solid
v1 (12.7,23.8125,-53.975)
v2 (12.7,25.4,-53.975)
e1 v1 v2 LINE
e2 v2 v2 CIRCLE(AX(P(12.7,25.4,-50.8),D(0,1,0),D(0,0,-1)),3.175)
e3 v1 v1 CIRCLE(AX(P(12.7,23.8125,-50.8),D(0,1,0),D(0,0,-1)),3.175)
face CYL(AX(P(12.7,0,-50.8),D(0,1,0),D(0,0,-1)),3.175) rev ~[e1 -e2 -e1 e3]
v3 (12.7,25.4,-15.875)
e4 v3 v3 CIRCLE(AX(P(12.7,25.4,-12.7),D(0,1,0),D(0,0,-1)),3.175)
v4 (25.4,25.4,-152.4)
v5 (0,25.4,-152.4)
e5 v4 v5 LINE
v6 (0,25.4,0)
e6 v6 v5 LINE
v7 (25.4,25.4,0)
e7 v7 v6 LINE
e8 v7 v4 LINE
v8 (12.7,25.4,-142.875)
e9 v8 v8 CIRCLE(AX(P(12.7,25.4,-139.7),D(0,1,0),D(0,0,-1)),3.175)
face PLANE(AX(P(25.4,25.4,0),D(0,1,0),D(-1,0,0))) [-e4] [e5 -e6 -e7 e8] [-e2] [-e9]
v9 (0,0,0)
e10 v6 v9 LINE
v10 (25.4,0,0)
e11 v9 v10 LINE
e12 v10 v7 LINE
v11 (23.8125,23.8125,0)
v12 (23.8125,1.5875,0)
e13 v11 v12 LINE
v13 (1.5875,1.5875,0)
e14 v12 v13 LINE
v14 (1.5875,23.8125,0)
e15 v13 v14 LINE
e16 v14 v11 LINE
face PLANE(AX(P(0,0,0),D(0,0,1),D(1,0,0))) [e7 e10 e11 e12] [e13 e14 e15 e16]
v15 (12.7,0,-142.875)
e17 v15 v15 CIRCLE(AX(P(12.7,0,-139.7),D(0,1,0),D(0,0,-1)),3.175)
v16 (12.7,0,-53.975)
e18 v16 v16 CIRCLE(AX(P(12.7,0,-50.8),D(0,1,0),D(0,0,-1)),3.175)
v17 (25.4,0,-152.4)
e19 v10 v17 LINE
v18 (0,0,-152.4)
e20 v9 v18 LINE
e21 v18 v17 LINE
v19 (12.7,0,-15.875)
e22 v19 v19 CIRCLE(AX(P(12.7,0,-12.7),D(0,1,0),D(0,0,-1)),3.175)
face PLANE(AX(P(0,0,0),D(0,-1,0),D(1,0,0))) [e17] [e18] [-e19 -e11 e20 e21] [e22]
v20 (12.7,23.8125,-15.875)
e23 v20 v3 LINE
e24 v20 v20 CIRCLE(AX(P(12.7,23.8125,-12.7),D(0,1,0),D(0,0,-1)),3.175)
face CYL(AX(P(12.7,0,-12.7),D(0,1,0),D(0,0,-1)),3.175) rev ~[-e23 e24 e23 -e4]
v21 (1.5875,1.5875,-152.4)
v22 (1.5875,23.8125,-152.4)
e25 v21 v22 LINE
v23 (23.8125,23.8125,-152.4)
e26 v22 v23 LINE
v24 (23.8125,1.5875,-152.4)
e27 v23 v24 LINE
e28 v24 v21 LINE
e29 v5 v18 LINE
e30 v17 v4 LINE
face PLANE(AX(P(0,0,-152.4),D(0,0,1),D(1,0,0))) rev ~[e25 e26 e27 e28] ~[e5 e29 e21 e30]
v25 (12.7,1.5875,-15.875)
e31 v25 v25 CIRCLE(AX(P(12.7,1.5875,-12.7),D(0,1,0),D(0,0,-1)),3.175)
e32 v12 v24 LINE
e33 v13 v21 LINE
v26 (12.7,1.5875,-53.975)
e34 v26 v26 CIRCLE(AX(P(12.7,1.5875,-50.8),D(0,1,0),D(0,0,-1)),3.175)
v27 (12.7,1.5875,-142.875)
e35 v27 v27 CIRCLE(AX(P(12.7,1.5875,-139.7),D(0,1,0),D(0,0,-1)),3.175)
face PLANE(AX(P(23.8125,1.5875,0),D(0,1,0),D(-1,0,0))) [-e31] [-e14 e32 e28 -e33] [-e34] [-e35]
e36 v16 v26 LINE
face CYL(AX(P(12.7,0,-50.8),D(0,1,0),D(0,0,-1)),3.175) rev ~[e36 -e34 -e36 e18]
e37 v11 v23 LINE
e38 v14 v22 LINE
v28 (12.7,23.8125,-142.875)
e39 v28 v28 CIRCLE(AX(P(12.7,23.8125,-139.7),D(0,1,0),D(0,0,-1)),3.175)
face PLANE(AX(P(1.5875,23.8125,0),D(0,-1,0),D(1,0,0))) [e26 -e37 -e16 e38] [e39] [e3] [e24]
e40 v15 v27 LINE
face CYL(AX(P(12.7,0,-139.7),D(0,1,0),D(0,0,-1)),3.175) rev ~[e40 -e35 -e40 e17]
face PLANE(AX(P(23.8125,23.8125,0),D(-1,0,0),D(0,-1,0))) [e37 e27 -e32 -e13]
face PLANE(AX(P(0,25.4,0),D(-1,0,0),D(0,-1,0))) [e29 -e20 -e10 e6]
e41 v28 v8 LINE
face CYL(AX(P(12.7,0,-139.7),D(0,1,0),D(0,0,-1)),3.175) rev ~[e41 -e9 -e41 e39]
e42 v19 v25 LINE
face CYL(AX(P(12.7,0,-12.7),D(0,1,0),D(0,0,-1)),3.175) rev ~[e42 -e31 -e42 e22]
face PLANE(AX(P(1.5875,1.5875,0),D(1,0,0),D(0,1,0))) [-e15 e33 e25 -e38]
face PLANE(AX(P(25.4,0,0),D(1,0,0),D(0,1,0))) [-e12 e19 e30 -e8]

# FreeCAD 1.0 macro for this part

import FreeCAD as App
import Part
import Sketcher
Q = App.Units.Quantity


def add_polygon(sketch, points):
    """Adds a closed chain of lines whose ends are joined by coincident constraints."""
    first, n = sketch.GeometryCount, len(points)
    for a, b in zip(points, points[1:] + points[:1]):
        sketch.addGeometry(Part.LineSegment(App.Vector(*a, 0), App.Vector(*b, 0)), False)
    for i in range(n):
        sketch.addConstraint(Sketcher.Constraint("Coincident", first + i, 2, first + (i + 1) % n, 1))

doc = App.newDocument("Part")
body = doc.addObject("PartDesign::Body", "Body")

# Sketch on XY plane
sketch1 = doc.addObject("Sketcher::SketchObject", "Sketch")
body.addObject(sketch1)
sketch1.AttachmentSupport = (doc.XY_Plane, [""])
sketch1.MapMode = "FlatFace"
add_polygon(sketch1, [(0, 25), (0, 0), (25, 0), (25, 25)])  # lines 0-3
add_polygon(sketch1, [(2, 2), (2, 24), (24, 24), (24, 2)])  # lines 4-7
sketch1.addConstraint([
    Sketcher.Constraint("Vertical", 0),
    Sketcher.Constraint("Horizontal", 1),
    Sketcher.Constraint("Vertical", 2),
    Sketcher.Constraint("Horizontal", 3),
    Sketcher.Constraint("Vertical", 4),
    Sketcher.Constraint("Horizontal", 5),
    Sketcher.Constraint("Vertical", 6),
    Sketcher.Constraint("Horizontal", 7),
    Sketcher.Constraint("Coincident", 0, 2, -1, 1),
    Sketcher.Constraint("Equal", 3, 0),
    Sketcher.Constraint("Equal", 7, 4),
    Sketcher.Constraint("DistanceX", 1, 1, 1, 2, Q("1 in")),
    Sketcher.Constraint("DistanceX", -1, 1, 4, 2, Q("0.0625 in")),
    Sketcher.Constraint("DistanceY", -1, 1, 6, 2, Q("0.0625 in")),
    Sketcher.Constraint("DistanceY", 4, 2, 3, 2, Q("0.0625 in")),
])
pad1 = doc.addObject("PartDesign::Pad", "Pad")
body.addObject(pad1)
pad1.Profile = sketch1
pad1.Length = Q("6 in")
pad1.Reversed = True

# Sketch on XZ plane
sketch2 = doc.addObject("Sketcher::SketchObject", "Sketch001")
body.addObject(sketch2)
sketch2.AttachmentSupport = (doc.XZ_Plane, [""])
sketch2.MapMode = "FlatFace"
sketch2.addGeometry([
    Part.Circle(App.Vector(12.7, -12.7, 0), App.Vector(0, 0, 1), 3.2),
    Part.Circle(App.Vector(12.7, -139.7, 0), App.Vector(0, 0, 1), 3.2),
    Part.Circle(App.Vector(12.7, -50.8, 0), App.Vector(0, 0, 1), 3.2),
], False)
sketch2.addConstraint([
    Sketcher.Constraint("Equal", 0, 1),
    Sketcher.Constraint("Equal", 1, 2),
    Sketcher.Constraint("Vertical", 0, 3, 1, 3),
    Sketcher.Constraint("Vertical", 1, 3, 2, 3),
    Sketcher.Constraint("Diameter", 0, Q("0.25 in")),
    Sketcher.Constraint("DistanceY", 2, 3, -1, 1, Q("2 in")),
    Sketcher.Constraint("DistanceY", 1, 3, 0, 3, Q("5 in")),
    Sketcher.Constraint("DistanceX", -1, 1, 0, 3, Q("0.5 in")),
    Sketcher.Constraint("DistanceY", 0, 3, -1, 1, Q("0.5 in")),
])
doc.recompute()
hole = doc.addObject("PartDesign::Hole", "Hole")
body.addObject(hole)
hole.Profile = sketch2
hole.ThreadType = "None"
hole.Diameter = Q("0.25 in")
hole.DepthType = "Dimension"
hole.Depth = Q("1 in")
hole.DrillPoint = "Angled"
hole.DrillPointAngle = 118

doc.recompute()
